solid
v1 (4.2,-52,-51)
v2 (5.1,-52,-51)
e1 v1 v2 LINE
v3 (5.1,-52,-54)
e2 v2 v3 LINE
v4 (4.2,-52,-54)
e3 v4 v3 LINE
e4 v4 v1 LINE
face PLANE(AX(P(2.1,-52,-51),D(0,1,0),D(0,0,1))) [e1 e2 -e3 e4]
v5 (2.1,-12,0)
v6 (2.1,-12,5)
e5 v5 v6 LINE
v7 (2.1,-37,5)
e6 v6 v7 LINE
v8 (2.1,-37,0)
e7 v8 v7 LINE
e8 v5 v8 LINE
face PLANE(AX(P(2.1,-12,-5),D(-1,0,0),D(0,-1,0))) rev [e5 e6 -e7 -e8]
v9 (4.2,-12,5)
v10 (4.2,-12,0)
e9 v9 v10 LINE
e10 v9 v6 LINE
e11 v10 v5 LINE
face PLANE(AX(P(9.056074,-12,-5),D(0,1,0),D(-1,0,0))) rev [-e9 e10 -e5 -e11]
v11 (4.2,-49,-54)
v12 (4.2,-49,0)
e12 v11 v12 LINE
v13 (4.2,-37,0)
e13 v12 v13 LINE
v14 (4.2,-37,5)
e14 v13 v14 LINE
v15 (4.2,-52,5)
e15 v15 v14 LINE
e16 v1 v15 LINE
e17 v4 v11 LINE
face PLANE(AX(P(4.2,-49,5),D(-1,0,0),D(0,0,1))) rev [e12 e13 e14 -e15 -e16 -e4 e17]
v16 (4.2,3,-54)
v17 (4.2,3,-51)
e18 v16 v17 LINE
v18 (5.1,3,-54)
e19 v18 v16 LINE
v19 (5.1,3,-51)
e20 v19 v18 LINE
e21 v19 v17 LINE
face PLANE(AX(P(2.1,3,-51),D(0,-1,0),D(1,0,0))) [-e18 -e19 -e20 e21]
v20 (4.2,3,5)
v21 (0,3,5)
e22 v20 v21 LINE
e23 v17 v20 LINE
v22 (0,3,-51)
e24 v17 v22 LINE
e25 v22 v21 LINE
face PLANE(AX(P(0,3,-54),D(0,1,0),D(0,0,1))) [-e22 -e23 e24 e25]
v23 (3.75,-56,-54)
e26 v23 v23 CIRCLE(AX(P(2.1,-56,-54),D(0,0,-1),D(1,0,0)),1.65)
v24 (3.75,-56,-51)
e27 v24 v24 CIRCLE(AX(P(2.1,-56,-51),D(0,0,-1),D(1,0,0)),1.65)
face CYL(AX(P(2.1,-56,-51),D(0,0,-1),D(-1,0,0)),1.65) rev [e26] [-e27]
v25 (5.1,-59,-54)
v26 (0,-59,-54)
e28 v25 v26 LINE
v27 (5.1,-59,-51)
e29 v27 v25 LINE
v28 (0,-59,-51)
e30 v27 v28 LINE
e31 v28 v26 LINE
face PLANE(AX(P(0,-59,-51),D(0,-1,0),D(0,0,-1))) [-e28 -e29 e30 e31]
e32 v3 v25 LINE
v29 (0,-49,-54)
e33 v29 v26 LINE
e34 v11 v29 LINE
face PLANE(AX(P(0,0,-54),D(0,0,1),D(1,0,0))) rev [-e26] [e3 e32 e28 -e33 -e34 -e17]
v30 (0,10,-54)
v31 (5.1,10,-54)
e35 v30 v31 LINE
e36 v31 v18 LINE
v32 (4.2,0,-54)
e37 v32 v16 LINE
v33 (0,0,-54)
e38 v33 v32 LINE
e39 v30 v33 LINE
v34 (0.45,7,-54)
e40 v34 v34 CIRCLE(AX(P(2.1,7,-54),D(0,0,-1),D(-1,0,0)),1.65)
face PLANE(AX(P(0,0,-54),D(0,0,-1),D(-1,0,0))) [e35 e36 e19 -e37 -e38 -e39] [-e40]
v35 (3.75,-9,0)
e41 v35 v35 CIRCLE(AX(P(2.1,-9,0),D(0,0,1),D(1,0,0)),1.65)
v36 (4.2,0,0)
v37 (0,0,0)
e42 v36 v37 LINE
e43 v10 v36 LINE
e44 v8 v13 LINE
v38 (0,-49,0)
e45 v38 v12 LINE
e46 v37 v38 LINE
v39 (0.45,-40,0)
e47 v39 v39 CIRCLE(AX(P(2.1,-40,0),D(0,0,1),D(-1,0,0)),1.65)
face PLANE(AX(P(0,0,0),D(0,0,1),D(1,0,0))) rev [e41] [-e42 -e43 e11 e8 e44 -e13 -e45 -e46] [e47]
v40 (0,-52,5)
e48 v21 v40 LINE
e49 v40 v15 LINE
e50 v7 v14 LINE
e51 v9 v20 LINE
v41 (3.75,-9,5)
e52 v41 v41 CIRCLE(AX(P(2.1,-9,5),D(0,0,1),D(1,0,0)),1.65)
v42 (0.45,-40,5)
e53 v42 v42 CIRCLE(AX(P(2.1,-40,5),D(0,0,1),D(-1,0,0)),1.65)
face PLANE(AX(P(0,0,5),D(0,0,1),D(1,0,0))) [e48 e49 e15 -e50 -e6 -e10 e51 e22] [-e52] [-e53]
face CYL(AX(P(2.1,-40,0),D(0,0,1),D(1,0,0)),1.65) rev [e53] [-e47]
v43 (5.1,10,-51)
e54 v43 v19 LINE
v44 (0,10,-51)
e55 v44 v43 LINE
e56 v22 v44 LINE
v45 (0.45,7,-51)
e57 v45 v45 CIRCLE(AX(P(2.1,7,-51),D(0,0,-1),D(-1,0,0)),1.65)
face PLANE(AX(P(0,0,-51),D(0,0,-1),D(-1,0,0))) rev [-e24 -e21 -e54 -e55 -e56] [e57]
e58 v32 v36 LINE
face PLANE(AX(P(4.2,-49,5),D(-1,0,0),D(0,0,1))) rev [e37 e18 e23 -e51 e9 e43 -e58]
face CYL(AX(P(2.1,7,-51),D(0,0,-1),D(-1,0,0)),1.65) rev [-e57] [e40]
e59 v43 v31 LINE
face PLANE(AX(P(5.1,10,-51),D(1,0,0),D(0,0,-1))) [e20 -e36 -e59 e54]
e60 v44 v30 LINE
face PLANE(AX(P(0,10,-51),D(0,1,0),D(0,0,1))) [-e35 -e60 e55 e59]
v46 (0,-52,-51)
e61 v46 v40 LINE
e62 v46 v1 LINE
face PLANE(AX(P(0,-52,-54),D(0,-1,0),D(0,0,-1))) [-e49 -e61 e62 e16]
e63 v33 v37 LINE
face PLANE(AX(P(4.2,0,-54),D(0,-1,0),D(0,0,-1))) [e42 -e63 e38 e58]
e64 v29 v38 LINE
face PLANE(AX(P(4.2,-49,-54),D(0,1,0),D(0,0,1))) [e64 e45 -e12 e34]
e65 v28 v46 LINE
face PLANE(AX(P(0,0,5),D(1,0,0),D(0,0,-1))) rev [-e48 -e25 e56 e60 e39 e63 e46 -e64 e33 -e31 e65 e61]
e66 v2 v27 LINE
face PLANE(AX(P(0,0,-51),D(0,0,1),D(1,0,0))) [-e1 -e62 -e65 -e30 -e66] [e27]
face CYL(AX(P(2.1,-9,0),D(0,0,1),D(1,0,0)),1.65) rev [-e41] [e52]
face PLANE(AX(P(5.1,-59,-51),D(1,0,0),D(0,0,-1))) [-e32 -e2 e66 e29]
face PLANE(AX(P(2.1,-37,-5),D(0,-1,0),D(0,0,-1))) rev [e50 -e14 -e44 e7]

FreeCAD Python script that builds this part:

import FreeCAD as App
import Part
import Sketcher
from FreeCAD import Vector
Q = App.Units.Quantity


def add_polygon(sketch, points):
    """Adds a closed chain of lines whose ends are joined by coincident constraints."""
    first, n = sketch.GeometryCount, len(points)
    for a, b in zip(points, points[1:] + points[:1]):
        sketch.addGeometry(Part.LineSegment(App.Vector(*a, 0), App.Vector(*b, 0)), False)
    for i in range(n):
        sketch.addConstraint(Sketcher.Constraint("Coincident", first + i, 2, first + (i + 1) % n, 1))

doc = App.newDocument("Part")
body = doc.addObject("PartDesign::Body", "Body")

sketch1 = body.newObject("Sketcher::SketchObject", "Sketch")
sketch1.AttachmentSupport = (doc.getObject("XY_Plane"), [""])
sketch1.MapMode = "FlatFace"
add_polygon(sketch1, [(0, 0), (0, -49), (4.2, -49), (4.2, 0)])
sketch1.addConstraint([
    Sketcher.Constraint("Vertical", 0),
    Sketcher.Constraint("Horizontal", 1),
    Sketcher.Constraint("Vertical", 2),
    Sketcher.Constraint("Horizontal", 3),
    Sketcher.Constraint("Coincident", 3, 2, -1, 1),
    Sketcher.Constraint("DistanceY", 0, 2, 0, 1, Q("49 mm")),
    Sketcher.Constraint("DistanceX", 1, 1, 1, 2, Q("4.2 mm")),
])
pad1 = body.newObject("PartDesign::Pad", "Pad")
pad1.Profile = sketch1
pad1.Length = 5

sketch2 = body.newObject("Sketcher::SketchObject", "Sketch001")
sketch2.AttachmentSupport = (doc.getObject("XY_Plane"), [""])
sketch2.MapMode = "FlatFace"
sketch2.AttachmentOffset = App.Placement(Vector(0, 0, 5), App.Rotation())
sketch2.addGeometry([
    Part.Circle(Vector(2.1, -9, 0), Vector(0, 0, 1), 1.65),
    Part.Circle(Vector(2.1, -40, 0), Vector(0, 0, 1), 1.65),
], False)
sketch2.addConstraint([
    Sketcher.Constraint("Equal", 0, 1),
    Sketcher.Constraint("Vertical", 0, 3, 1, 3),
    Sketcher.Constraint("Diameter", 0, Q("3.3 mm")),
    Sketcher.Constraint("DistanceY", 0, 3, -1, 1, Q("9 mm")),
    Sketcher.Constraint("DistanceY", 1, 3, -1, 1, Q("40 mm")),
    Sketcher.Constraint("DistanceX", -1, 1, 0, 3, Q("2.1 mm")),
])
pocket1 = body.newObject("PartDesign::Pocket", "Pocket")
pocket1.Profile = sketch2
pocket1.Length = 5

sketch3 = body.newObject("Sketcher::SketchObject", "Sketch002")
sketch3.AttachmentSupport = (doc.getObject("XY_Plane"), [""])
sketch3.MapMode = "FlatFace"
sketch3.AttachmentOffset = App.Placement(Vector(0, 0, 5), App.Rotation())
add_polygon(sketch3, [(0, -49), (0, -52), (4.2, -52), (4.2, -49)])
add_polygon(sketch3, [(0, 3), (0, 0), (4.2, 0), (4.2, 3)])
sketch3.addConstraint([
    Sketcher.Constraint("Vertical", 0),
    Sketcher.Constraint("Horizontal", 1),
    Sketcher.Constraint("Vertical", 2),
    Sketcher.Constraint("Horizontal", 3),
    Sketcher.Constraint("Vertical", 4),
    Sketcher.Constraint("Horizontal", 5),
    Sketcher.Constraint("Vertical", 6),
    Sketcher.Constraint("Horizontal", 7),
    Sketcher.Constraint("Coincident", 4, 2, -1, 1),
    Sketcher.Constraint("PointOnObject", 0, 2, -2),
    Sketcher.Constraint("Vertical", 2, 2, 5, 2),
    Sketcher.Constraint("Equal", 2, 4),
    Sketcher.Constraint("DistanceY", 0, 2, 0, 1, Q("3 mm")),
    Sketcher.Constraint("DistanceX", 1, 1, 1, 2, Q("4.2 mm")),
    Sketcher.Constraint("DistanceY", 0, 2, -1, 1, Q("52 mm")),
])
pad2 = body.newObject("PartDesign::Pad", "Pad001")
pad2.Profile = sketch3
pad2.Length = 59
pad2.Reversed = True

sketch4 = body.newObject("Sketcher::SketchObject", "Sketch003")
sketch4.AttachmentSupport = (doc.getObject("XY_Plane"), [""])
sketch4.MapMode = "FlatFace"
sketch4.AttachmentOffset = App.Placement(Vector(0, 0, -54), App.Rotation())
add_polygon(sketch4, [(5.1, 3), (0, 3), (0, 10), (5.1, 10)])
sketch4.addGeometry(Part.Circle(Vector(2.1, 7, 0), Vector(0, 0, 1), 1.65), False)
add_polygon(sketch4, [(5.1, -59), (0, -59), (0, -52), (5.1, -52)])
sketch4.addGeometry(Part.Circle(Vector(2.1, -56, 0), Vector(0, 0, 1), 1.65), False)
sketch4.addConstraint([
    Sketcher.Constraint("Horizontal", 0),
    Sketcher.Constraint("Vertical", 1),
    Sketcher.Constraint("Horizontal", 2),
    Sketcher.Constraint("Vertical", 3),
    Sketcher.Constraint("Horizontal", 5),
    Sketcher.Constraint("Vertical", 6),
    Sketcher.Constraint("Horizontal", 7),
    Sketcher.Constraint("Vertical", 8),
    Sketcher.Constraint("Equal", 4, 9),
    Sketcher.Constraint("PointOnObject", 0, 2, -2),
    Sketcher.Constraint("PointOnObject", 5, 2, -2),
    Sketcher.Constraint("Vertical", 4, 3, 9, 3),
    Sketcher.Constraint("Vertical", 3, 2, 7, 2),
    Sketcher.Constraint("Equal", 3, 6),
    Sketcher.Constraint("Diameter", 4, Q("3.3 mm")),
    Sketcher.Constraint("DistanceY", 1, 1, 1, 2, Q("7 mm")),
    Sketcher.Constraint("DistanceX", 0, 2, 0, 1, Q("5.1 mm")),
    Sketcher.Constraint("DistanceY", -1, 1, 4, 3, Q("7 mm")),
    Sketcher.Constraint("DistanceY", 9, 3, -1, 1, Q("56 mm")),
    Sketcher.Constraint("DistanceY", -1, 1, 0, 2, Q("3 mm")),
    Sketcher.Constraint("DistanceY", 5, 2, -1, 1, Q("59 mm")),
    Sketcher.Constraint("DistanceX", 4, 3, 2, 2, Q("3 mm")),
])
pad3 = body.newObject("PartDesign::Pad", "Pad002")
pad3.Profile = sketch4
pad3.Length = 3

sketch5 = body.newObject("Sketcher::SketchObject", "Sketch004")
sketch5.AttachmentSupport = (doc.getObject("XY_Plane"), [""])
sketch5.MapMode = "FlatFace"
sketch5.AttachmentOffset = App.Placement(Vector(0, 0, 5), App.Rotation())
add_polygon(sketch5, [(2.1, -12), (2.1, -37), (9.056074, -37), (9.056074, -12)])
sketch5.addConstraint([
    Sketcher.Constraint("Vertical", 0),
    Sketcher.Constraint("Horizontal", 1),
    Sketcher.Constraint("Vertical", 2),
    Sketcher.Constraint("Horizontal", 3),
    Sketcher.Constraint("DistanceY", 0, 2, 0, 1, Q("25 mm")),
    Sketcher.Constraint("DistanceY", 0, 2, -1, 1, Q("37 mm")),
    Sketcher.Constraint("DistanceX", -1, 1, 0, 2, Q("2.1 mm")),
    Sketcher.Constraint("DistanceX", 1, 1, 1, 2, Q("6.956074 mm")),
])
pocket2 = body.newObject("PartDesign::Pocket", "Pocket001")
pocket2.Profile = sketch5
pocket2.Length = 10

doc.recompute()
